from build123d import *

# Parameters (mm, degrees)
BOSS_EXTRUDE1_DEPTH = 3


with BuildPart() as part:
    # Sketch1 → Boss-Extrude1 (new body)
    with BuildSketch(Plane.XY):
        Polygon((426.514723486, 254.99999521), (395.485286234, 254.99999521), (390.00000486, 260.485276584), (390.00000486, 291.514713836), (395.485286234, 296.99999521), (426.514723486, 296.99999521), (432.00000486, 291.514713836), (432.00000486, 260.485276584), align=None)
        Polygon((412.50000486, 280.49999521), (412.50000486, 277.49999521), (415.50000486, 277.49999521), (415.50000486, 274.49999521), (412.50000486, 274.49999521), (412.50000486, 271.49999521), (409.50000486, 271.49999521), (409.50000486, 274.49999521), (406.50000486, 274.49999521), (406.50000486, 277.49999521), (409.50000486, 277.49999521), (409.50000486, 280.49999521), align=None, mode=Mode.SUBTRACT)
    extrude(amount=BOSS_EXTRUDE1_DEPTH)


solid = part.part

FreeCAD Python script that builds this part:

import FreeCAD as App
import Part
import Sketcher

V = App.Vector


def add_polygon(sketch, points):
    """Adds a closed chain of lines whose ends are joined by coincident constraints."""
    first, n = sketch.GeometryCount, len(points)
    for a, b in zip(points, points[1:] + points[:1]):
        sketch.addGeometry(Part.LineSegment(App.Vector(*a, 0), App.Vector(*b, 0)), False)
    for i in range(n):
        sketch.addConstraint(Sketcher.Constraint("Coincident", first + i, 2, first + (i + 1) % n, 1))

doc = App.newDocument("Part")
body = doc.addObject("PartDesign::Body", "Body")

# Sketch on XY plane
sketch1 = body.newObject("Sketcher::SketchObject", "Sketch")
sketch1.AttachmentSupport = (doc.getObject("XY_Plane"), [""])
sketch1.MapMode = "FlatFace"
add_polygon(sketch1, [(395.5, 255), (426.5, 255), (432, 260.5), (432, 291.5), (426.5, 297), (395.5, 297), (390, 291.5), (390, 260.5)])  # lines 0-7
add_polygon(sketch1, [(412.5, 280.5), (412.5, 277.5), (415.5, 277.5), (415.5, 274.5), (412.5, 274.5), (412.5, 271.5), (409.5, 271.5), (409.5, 274.5), (406.5, 274.5), (406.5, 277.5), (409.5, 277.5), (409.5, 280.5)])  # lines 8-19
sketch1.addConstraint(Sketcher.Constraint("Horizontal", 0))
sketch1.addConstraint(Sketcher.Constraint("Vertical", 2))
sketch1.addConstraint(Sketcher.Constraint("Horizontal", 4))
sketch1.addConstraint(Sketcher.Constraint("Vertical", 6))
sketch1.addConstraint(Sketcher.Constraint("Vertical", 8))
sketch1.addConstraint(Sketcher.Constraint("Horizontal", 9))
sketch1.addConstraint(Sketcher.Constraint("Vertical", 10))
sketch1.addConstraint(Sketcher.Constraint("Horizontal", 11))
sketch1.addConstraint(Sketcher.Constraint("Vertical", 12))
sketch1.addConstraint(Sketcher.Constraint("Horizontal", 13))
sketch1.addConstraint(Sketcher.Constraint("Vertical", 14))
sketch1.addConstraint(Sketcher.Constraint("Horizontal", 15))
sketch1.addConstraint(Sketcher.Constraint("Vertical", 16))
sketch1.addConstraint(Sketcher.Constraint("Horizontal", 17))
sketch1.addConstraint(Sketcher.Constraint("Vertical", 18))
sketch1.addConstraint(Sketcher.Constraint("Horizontal", 19))
sketch1.addConstraint(Sketcher.Constraint("Perpendicular", 1, 3))
sketch1.addConstraint(Sketcher.Constraint("Perpendicular", 3, 5))
sketch1.addConstraint(Sketcher.Constraint("Perpendicular", 5, 7))
sketch1.addConstraint(Sketcher.Constraint("Horizontal", 2, 2, 5, 2))
sketch1.addConstraint(Sketcher.Constraint("Horizontal", 1, 2, 6, 2))
sketch1.addConstraint(Sketcher.Constraint("Horizontal", 11, 2, 14, 2))
sketch1.addConstraint(Sketcher.Constraint("Horizontal", 9, 2, 16, 2))
sketch1.addConstraint(Sketcher.Constraint("Vertical", 0, 2, 3, 2))
sketch1.addConstraint(Sketcher.Constraint("Vertical", 4, 2, 7, 2))
sketch1.addConstraint(Sketcher.Constraint("Vertical", 8, 2, 11, 2))
sketch1.addConstraint(Sketcher.Constraint("Vertical", 14, 2, 17, 2))
sketch1.addConstraint(Sketcher.Constraint("Equal", 11, 13))
sketch1.addConstraint(Sketcher.Constraint("Equal", 13, 15))
sketch1.addConstraint(Sketcher.Constraint("Equal", 4, 2))
sketch1.addConstraint(Sketcher.Constraint("Equal", 19, 8))
sketch1.addConstraint(Sketcher.Constraint("Equal", 8, 10))
sketch1.addConstraint(Sketcher.Constraint("Equal", 10, 12))
sketch1.addConstraint(Sketcher.Constraint("DistanceX", 9, 1, 9, 2, 3.0))
sketch1.addConstraint(Sketcher.Constraint("DistanceY", 0, 2, 3, 2, 42.0))
sketch1.addConstraint(Sketcher.Constraint("DistanceX", 8, 2, 2, 2, 19.5))
sketch1.addConstraint(Sketcher.Constraint("DistanceY", 8, 2, 3, 2, 19.5))
sketch1.addConstraint(Sketcher.Constraint("Distance", 1, 7.757359))
sketch1.addConstraint(Sketcher.Constraint("DistanceX", -1, 1, 0, 2, 426.514723))
sketch1.addConstraint(Sketcher.Constraint("DistanceY", -1, 1, 0, 2, 254.999995))
pad1 = body.newObject("PartDesign::Pad", "Pad")
pad1.Profile = sketch1
pad1.Length = 3

doc.recompute()
